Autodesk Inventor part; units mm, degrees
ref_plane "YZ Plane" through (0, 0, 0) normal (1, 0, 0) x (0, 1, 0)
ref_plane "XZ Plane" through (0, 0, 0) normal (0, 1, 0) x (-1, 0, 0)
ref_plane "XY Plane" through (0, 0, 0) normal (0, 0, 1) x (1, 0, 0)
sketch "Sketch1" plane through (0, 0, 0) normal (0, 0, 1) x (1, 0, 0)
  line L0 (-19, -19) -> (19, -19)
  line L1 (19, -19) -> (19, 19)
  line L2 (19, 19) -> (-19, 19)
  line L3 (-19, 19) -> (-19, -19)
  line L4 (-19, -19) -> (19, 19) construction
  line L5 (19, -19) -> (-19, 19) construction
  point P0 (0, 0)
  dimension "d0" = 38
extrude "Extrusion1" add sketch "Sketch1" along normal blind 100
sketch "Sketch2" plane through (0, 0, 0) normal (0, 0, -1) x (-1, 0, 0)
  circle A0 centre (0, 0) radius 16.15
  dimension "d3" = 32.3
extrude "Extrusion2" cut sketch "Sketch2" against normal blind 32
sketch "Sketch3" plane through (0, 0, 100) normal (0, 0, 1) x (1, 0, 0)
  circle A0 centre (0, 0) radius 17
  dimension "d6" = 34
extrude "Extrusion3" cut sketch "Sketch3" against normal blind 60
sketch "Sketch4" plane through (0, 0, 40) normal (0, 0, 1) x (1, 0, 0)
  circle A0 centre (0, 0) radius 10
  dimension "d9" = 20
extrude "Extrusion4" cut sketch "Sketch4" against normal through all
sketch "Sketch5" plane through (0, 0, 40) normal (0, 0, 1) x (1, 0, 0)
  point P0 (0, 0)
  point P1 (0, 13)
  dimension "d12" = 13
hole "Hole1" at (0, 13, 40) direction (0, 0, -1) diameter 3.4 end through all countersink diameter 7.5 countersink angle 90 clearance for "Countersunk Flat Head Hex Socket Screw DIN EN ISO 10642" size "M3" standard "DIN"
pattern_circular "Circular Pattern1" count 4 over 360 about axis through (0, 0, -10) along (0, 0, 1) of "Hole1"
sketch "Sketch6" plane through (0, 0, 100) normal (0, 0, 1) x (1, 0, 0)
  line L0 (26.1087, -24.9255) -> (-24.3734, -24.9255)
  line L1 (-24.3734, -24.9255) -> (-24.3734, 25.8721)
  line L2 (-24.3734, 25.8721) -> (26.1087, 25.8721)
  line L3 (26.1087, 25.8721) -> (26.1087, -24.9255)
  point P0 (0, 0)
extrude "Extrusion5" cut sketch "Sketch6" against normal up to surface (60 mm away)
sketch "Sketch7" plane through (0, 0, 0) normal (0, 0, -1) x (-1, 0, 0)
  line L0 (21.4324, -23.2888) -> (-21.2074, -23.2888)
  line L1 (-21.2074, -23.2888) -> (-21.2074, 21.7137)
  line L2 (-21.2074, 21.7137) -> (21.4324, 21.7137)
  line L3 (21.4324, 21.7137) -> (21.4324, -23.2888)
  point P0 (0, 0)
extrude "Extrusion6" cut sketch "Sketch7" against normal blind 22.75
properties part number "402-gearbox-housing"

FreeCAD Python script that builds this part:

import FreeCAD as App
import Part
import Sketcher

V = App.Vector
Q = App.Units.Quantity

doc = App.newDocument("Part")
params = doc.addObject("Spreadsheet::Sheet", "Params")
for row, (alias, value) in enumerate([
    ("sketch1_width", "38 mm"),
    ("pad1_length", "100 mm"),
    ("sketch2_diameter", "32.3 mm"),
    ("pocket1_length", "32 mm"),
    ("sketch3_diameter", "34 mm"),
    ("pocket2_length", "60 mm"),
    ("sketch4_diameter", "20 mm"),
    ("sketch5_diameter", "3.4 mm"),
    ("hole_diameter", "3.4 mm"),
    ("hole_csink_diameter", "7.5 mm"),
    ("pocket4_length", "60 mm"),
    ("pocket5_length", "22.75 mm"),
], start=1):
    params.set(f"A{row}", alias)
    params.set(f"B{row}", "=" + value)
    params.setAlias(f"B{row}", alias)

body = doc.addObject("PartDesign::Body", "Body")

# Sketch on XY plane
sketch1 = body.newObject("Sketcher::SketchObject", "Sketch")
sketch1.AttachmentSupport = (doc.getObject("XY_Plane"), [""])
sketch1.MapMode = "FlatFace"
sketch1.addGeometry([
    Part.LineSegment(V(-19, 19, 0), V(-19, -19, 0)),
    Part.LineSegment(V(-19, -19, 0), V(19, -19, 0)),
    Part.LineSegment(V(19, -19, 0), V(19, 19, 0)),
    Part.LineSegment(V(19, 19, 0), V(-19, 19, 0)),
], False)
sketch1.addConstraint([
    Sketcher.Constraint("Coincident", 0, 2, 1, 1),
    Sketcher.Constraint("Coincident", 1, 2, 2, 1),
    Sketcher.Constraint("Coincident", 2, 2, 3, 1),
    Sketcher.Constraint("Coincident", 3, 2, 0, 1),
    Sketcher.Constraint("Vertical", 0),
    Sketcher.Constraint("Horizontal", 1),
    Sketcher.Constraint("Vertical", 2),
    Sketcher.Constraint("Horizontal", 3),
    Sketcher.Constraint("Symmetric", 0, 2, 2, 2, -1, 1),
    Sketcher.Constraint("Equal", 3, 0),
    Sketcher.Constraint("DistanceX", 1, 1, 1, 2, Q("38 mm")),
])
sketch1.setExpression("Constraints[10]", "Params.sketch1_width")
pad1 = body.newObject("PartDesign::Pad", "Pad")
pad1.Profile = sketch1
pad1.setExpression("Length", "Params.pad1_length")

# Sketch on XY plane
sketch2 = body.newObject("Sketcher::SketchObject", "Sketch001")
sketch2.AttachmentSupport = (doc.getObject("XY_Plane"), [""])
sketch2.MapMode = "FlatFace"
sketch2.addGeometry(Part.Circle(V(0, 0, 0), V(0, 0, 1), 16), False)
sketch2.addConstraint([
    Sketcher.Constraint("Coincident", 0, 3, -1, 1),
    Sketcher.Constraint("Diameter", 0, Q("32.3 mm")),
])
sketch2.setExpression("Constraints[1]", "Params.sketch2_diameter")
pocket1 = body.newObject("PartDesign::Pocket", "Pocket")
pocket1.Profile = sketch2
pocket1.setExpression("Length", "Params.pocket1_length")
pocket1.Reversed = True

# Sketch on XY plane
sketch3 = body.newObject("Sketcher::SketchObject", "Sketch002")
sketch3.AttachmentSupport = (doc.getObject("XY_Plane"), [""])
sketch3.MapMode = "FlatFace"
sketch3.AttachmentOffset = App.Placement(V(0, 0, 100), App.Rotation())
sketch3.addGeometry(Part.Circle(V(0, 0, 0), V(0, 0, 1), 17), False)
sketch3.addConstraint([
    Sketcher.Constraint("Coincident", 0, 3, -1, 1),
    Sketcher.Constraint("Diameter", 0, Q("34 mm")),
])
sketch3.setExpression("Constraints[1]", "Params.sketch3_diameter")
pocket2 = body.newObject("PartDesign::Pocket", "Pocket001")
pocket2.Profile = sketch3
pocket2.setExpression("Length", "Params.pocket2_length")

# Sketch on XY plane
sketch4 = body.newObject("Sketcher::SketchObject", "Sketch003")
sketch4.AttachmentSupport = (doc.getObject("XY_Plane"), [""])
sketch4.MapMode = "FlatFace"
sketch4.AttachmentOffset = App.Placement(V(0, 0, 40), App.Rotation())
sketch4.addGeometry(Part.Circle(V(0, 0, 0), V(0, 0, 1), 10), False)
sketch4.addConstraint([
    Sketcher.Constraint("Coincident", 0, 3, -1, 1),
    Sketcher.Constraint("Diameter", 0, Q("20 mm")),
])
sketch4.setExpression("Constraints[1]", "Params.sketch4_diameter")
pocket3 = body.newObject("PartDesign::Pocket", "Pocket002")
pocket3.Profile = sketch4
pocket3.Type = "ThroughAll"

# Sketch on XY plane
sketch5 = body.newObject("Sketcher::SketchObject", "Sketch004")
sketch5.AttachmentSupport = (doc.getObject("XY_Plane"), [""])
sketch5.MapMode = "FlatFace"
sketch5.AttachmentOffset = App.Placement(V(0, 0, 40), App.Rotation())
sketch5.addGeometry(Part.Circle(V(0, 13, 0), V(0, 0, 1), 1.7), False)
sketch5.addConstraint([
    Sketcher.Constraint("PointOnObject", 0, 3, -2),
    Sketcher.Constraint("Diameter", 0, Q("3.4 mm")),
    Sketcher.Constraint("DistanceY", -1, 1, 0, 3, Q("13 mm")),
])
sketch5.setExpression("Constraints[1]", "Params.sketch5_diameter")
doc.recompute()
hole = body.newObject("PartDesign::Hole", "Hole")
hole.Profile = sketch5
hole.ThreadType = "None"
hole.setExpression("Diameter", "Params.hole_diameter")
hole.DepthType = "ThroughAll"
hole.HoleCutType = "Countersink"
hole.setExpression("HoleCutDiameter", "Params.hole_csink_diameter")
hole.HoleCutCountersinkAngle = 90
doc.recompute()

polarpattern = body.newObject("PartDesign::PolarPattern", "PolarPattern")
polarpattern.Originals = [hole]
polarpattern.Axis = (doc.getObject("Z_Axis"), [""])
polarpattern.Angle = 360
polarpattern.Occurrences = 4
body.Tip = polarpattern

# Sketch on XY plane
sketch6 = body.newObject("Sketcher::SketchObject", "Sketch005")
sketch6.AttachmentSupport = (doc.getObject("XY_Plane"), [""])
sketch6.MapMode = "FlatFace"
sketch6.AttachmentOffset = App.Placement(V(0, 0, 100), App.Rotation())
sketch6.addGeometry([
    Part.LineSegment(V(-24, -25, 0), V(26, -25, 0)),
    Part.LineSegment(V(26, -25, 0), V(26, 26, 0)),
    Part.LineSegment(V(26, 26, 0), V(-24, 26, 0)),
    Part.LineSegment(V(-24, 26, 0), V(-24, -25, 0)),
], False)
sketch6.addConstraint([
    Sketcher.Constraint("Coincident", 0, 2, 1, 1),
    Sketcher.Constraint("Coincident", 1, 2, 2, 1),
    Sketcher.Constraint("Coincident", 2, 2, 3, 1),
    Sketcher.Constraint("Coincident", 3, 2, 0, 1),
    Sketcher.Constraint("Horizontal", 0),
    Sketcher.Constraint("Vertical", 1),
    Sketcher.Constraint("Horizontal", 2),
    Sketcher.Constraint("Vertical", 3),
    Sketcher.Constraint("DistanceX", 0, 1, 0, 2, Q("50.482 mm")),
    Sketcher.Constraint("DistanceY", 1, 1, 1, 2, Q("50.7976 mm")),
    Sketcher.Constraint("DistanceY", -1, 1, 1, 2, Q("25.872 mm")),
    Sketcher.Constraint("DistanceX", -1, 1, 0, 2, Q("26.1087 mm")),
])
pocket4 = body.newObject("PartDesign::Pocket", "Pocket003")
pocket4.Profile = sketch6
pocket4.setExpression("Length", "Params.pocket4_length")

# Sketch on XY plane
sketch7 = body.newObject("Sketcher::SketchObject", "Sketch006")
sketch7.AttachmentSupport = (doc.getObject("XY_Plane"), [""])
sketch7.MapMode = "FlatFace"
sketch7.addGeometry([
    Part.LineSegment(V(21, -23, 0), V(-21, -23, 0)),
    Part.LineSegment(V(-21, -23, 0), V(-21, 22, 0)),
    Part.LineSegment(V(-21, 22, 0), V(21, 22, 0)),
    Part.LineSegment(V(21, 22, 0), V(21, -23, 0)),
], False)
sketch7.addConstraint([
    Sketcher.Constraint("Coincident", 0, 2, 1, 1),
    Sketcher.Constraint("Coincident", 1, 2, 2, 1),
    Sketcher.Constraint("Coincident", 2, 2, 3, 1),
    Sketcher.Constraint("Coincident", 3, 2, 0, 1),
    Sketcher.Constraint("Horizontal", 0),
    Sketcher.Constraint("Vertical", 1),
    Sketcher.Constraint("Horizontal", 2),
    Sketcher.Constraint("Vertical", 3),
    Sketcher.Constraint("DistanceX", 0, 2, 0, 1, Q("42.6398 mm")),
    Sketcher.Constraint("DistanceY", 1, 1, 1, 2, Q("45.0025 mm")),
    Sketcher.Constraint("DistanceX", 0, 2, -1, 1, Q("21.4324 mm")),
    Sketcher.Constraint("DistanceY", 0, 2, -1, 1, Q("23.2888 mm")),
])
pocket5 = body.newObject("PartDesign::Pocket", "Pocket004")
pocket5.Profile = sketch7
pocket5.setExpression("Length", "Params.pocket5_length")
pocket5.Reversed = True

doc.recompute()
